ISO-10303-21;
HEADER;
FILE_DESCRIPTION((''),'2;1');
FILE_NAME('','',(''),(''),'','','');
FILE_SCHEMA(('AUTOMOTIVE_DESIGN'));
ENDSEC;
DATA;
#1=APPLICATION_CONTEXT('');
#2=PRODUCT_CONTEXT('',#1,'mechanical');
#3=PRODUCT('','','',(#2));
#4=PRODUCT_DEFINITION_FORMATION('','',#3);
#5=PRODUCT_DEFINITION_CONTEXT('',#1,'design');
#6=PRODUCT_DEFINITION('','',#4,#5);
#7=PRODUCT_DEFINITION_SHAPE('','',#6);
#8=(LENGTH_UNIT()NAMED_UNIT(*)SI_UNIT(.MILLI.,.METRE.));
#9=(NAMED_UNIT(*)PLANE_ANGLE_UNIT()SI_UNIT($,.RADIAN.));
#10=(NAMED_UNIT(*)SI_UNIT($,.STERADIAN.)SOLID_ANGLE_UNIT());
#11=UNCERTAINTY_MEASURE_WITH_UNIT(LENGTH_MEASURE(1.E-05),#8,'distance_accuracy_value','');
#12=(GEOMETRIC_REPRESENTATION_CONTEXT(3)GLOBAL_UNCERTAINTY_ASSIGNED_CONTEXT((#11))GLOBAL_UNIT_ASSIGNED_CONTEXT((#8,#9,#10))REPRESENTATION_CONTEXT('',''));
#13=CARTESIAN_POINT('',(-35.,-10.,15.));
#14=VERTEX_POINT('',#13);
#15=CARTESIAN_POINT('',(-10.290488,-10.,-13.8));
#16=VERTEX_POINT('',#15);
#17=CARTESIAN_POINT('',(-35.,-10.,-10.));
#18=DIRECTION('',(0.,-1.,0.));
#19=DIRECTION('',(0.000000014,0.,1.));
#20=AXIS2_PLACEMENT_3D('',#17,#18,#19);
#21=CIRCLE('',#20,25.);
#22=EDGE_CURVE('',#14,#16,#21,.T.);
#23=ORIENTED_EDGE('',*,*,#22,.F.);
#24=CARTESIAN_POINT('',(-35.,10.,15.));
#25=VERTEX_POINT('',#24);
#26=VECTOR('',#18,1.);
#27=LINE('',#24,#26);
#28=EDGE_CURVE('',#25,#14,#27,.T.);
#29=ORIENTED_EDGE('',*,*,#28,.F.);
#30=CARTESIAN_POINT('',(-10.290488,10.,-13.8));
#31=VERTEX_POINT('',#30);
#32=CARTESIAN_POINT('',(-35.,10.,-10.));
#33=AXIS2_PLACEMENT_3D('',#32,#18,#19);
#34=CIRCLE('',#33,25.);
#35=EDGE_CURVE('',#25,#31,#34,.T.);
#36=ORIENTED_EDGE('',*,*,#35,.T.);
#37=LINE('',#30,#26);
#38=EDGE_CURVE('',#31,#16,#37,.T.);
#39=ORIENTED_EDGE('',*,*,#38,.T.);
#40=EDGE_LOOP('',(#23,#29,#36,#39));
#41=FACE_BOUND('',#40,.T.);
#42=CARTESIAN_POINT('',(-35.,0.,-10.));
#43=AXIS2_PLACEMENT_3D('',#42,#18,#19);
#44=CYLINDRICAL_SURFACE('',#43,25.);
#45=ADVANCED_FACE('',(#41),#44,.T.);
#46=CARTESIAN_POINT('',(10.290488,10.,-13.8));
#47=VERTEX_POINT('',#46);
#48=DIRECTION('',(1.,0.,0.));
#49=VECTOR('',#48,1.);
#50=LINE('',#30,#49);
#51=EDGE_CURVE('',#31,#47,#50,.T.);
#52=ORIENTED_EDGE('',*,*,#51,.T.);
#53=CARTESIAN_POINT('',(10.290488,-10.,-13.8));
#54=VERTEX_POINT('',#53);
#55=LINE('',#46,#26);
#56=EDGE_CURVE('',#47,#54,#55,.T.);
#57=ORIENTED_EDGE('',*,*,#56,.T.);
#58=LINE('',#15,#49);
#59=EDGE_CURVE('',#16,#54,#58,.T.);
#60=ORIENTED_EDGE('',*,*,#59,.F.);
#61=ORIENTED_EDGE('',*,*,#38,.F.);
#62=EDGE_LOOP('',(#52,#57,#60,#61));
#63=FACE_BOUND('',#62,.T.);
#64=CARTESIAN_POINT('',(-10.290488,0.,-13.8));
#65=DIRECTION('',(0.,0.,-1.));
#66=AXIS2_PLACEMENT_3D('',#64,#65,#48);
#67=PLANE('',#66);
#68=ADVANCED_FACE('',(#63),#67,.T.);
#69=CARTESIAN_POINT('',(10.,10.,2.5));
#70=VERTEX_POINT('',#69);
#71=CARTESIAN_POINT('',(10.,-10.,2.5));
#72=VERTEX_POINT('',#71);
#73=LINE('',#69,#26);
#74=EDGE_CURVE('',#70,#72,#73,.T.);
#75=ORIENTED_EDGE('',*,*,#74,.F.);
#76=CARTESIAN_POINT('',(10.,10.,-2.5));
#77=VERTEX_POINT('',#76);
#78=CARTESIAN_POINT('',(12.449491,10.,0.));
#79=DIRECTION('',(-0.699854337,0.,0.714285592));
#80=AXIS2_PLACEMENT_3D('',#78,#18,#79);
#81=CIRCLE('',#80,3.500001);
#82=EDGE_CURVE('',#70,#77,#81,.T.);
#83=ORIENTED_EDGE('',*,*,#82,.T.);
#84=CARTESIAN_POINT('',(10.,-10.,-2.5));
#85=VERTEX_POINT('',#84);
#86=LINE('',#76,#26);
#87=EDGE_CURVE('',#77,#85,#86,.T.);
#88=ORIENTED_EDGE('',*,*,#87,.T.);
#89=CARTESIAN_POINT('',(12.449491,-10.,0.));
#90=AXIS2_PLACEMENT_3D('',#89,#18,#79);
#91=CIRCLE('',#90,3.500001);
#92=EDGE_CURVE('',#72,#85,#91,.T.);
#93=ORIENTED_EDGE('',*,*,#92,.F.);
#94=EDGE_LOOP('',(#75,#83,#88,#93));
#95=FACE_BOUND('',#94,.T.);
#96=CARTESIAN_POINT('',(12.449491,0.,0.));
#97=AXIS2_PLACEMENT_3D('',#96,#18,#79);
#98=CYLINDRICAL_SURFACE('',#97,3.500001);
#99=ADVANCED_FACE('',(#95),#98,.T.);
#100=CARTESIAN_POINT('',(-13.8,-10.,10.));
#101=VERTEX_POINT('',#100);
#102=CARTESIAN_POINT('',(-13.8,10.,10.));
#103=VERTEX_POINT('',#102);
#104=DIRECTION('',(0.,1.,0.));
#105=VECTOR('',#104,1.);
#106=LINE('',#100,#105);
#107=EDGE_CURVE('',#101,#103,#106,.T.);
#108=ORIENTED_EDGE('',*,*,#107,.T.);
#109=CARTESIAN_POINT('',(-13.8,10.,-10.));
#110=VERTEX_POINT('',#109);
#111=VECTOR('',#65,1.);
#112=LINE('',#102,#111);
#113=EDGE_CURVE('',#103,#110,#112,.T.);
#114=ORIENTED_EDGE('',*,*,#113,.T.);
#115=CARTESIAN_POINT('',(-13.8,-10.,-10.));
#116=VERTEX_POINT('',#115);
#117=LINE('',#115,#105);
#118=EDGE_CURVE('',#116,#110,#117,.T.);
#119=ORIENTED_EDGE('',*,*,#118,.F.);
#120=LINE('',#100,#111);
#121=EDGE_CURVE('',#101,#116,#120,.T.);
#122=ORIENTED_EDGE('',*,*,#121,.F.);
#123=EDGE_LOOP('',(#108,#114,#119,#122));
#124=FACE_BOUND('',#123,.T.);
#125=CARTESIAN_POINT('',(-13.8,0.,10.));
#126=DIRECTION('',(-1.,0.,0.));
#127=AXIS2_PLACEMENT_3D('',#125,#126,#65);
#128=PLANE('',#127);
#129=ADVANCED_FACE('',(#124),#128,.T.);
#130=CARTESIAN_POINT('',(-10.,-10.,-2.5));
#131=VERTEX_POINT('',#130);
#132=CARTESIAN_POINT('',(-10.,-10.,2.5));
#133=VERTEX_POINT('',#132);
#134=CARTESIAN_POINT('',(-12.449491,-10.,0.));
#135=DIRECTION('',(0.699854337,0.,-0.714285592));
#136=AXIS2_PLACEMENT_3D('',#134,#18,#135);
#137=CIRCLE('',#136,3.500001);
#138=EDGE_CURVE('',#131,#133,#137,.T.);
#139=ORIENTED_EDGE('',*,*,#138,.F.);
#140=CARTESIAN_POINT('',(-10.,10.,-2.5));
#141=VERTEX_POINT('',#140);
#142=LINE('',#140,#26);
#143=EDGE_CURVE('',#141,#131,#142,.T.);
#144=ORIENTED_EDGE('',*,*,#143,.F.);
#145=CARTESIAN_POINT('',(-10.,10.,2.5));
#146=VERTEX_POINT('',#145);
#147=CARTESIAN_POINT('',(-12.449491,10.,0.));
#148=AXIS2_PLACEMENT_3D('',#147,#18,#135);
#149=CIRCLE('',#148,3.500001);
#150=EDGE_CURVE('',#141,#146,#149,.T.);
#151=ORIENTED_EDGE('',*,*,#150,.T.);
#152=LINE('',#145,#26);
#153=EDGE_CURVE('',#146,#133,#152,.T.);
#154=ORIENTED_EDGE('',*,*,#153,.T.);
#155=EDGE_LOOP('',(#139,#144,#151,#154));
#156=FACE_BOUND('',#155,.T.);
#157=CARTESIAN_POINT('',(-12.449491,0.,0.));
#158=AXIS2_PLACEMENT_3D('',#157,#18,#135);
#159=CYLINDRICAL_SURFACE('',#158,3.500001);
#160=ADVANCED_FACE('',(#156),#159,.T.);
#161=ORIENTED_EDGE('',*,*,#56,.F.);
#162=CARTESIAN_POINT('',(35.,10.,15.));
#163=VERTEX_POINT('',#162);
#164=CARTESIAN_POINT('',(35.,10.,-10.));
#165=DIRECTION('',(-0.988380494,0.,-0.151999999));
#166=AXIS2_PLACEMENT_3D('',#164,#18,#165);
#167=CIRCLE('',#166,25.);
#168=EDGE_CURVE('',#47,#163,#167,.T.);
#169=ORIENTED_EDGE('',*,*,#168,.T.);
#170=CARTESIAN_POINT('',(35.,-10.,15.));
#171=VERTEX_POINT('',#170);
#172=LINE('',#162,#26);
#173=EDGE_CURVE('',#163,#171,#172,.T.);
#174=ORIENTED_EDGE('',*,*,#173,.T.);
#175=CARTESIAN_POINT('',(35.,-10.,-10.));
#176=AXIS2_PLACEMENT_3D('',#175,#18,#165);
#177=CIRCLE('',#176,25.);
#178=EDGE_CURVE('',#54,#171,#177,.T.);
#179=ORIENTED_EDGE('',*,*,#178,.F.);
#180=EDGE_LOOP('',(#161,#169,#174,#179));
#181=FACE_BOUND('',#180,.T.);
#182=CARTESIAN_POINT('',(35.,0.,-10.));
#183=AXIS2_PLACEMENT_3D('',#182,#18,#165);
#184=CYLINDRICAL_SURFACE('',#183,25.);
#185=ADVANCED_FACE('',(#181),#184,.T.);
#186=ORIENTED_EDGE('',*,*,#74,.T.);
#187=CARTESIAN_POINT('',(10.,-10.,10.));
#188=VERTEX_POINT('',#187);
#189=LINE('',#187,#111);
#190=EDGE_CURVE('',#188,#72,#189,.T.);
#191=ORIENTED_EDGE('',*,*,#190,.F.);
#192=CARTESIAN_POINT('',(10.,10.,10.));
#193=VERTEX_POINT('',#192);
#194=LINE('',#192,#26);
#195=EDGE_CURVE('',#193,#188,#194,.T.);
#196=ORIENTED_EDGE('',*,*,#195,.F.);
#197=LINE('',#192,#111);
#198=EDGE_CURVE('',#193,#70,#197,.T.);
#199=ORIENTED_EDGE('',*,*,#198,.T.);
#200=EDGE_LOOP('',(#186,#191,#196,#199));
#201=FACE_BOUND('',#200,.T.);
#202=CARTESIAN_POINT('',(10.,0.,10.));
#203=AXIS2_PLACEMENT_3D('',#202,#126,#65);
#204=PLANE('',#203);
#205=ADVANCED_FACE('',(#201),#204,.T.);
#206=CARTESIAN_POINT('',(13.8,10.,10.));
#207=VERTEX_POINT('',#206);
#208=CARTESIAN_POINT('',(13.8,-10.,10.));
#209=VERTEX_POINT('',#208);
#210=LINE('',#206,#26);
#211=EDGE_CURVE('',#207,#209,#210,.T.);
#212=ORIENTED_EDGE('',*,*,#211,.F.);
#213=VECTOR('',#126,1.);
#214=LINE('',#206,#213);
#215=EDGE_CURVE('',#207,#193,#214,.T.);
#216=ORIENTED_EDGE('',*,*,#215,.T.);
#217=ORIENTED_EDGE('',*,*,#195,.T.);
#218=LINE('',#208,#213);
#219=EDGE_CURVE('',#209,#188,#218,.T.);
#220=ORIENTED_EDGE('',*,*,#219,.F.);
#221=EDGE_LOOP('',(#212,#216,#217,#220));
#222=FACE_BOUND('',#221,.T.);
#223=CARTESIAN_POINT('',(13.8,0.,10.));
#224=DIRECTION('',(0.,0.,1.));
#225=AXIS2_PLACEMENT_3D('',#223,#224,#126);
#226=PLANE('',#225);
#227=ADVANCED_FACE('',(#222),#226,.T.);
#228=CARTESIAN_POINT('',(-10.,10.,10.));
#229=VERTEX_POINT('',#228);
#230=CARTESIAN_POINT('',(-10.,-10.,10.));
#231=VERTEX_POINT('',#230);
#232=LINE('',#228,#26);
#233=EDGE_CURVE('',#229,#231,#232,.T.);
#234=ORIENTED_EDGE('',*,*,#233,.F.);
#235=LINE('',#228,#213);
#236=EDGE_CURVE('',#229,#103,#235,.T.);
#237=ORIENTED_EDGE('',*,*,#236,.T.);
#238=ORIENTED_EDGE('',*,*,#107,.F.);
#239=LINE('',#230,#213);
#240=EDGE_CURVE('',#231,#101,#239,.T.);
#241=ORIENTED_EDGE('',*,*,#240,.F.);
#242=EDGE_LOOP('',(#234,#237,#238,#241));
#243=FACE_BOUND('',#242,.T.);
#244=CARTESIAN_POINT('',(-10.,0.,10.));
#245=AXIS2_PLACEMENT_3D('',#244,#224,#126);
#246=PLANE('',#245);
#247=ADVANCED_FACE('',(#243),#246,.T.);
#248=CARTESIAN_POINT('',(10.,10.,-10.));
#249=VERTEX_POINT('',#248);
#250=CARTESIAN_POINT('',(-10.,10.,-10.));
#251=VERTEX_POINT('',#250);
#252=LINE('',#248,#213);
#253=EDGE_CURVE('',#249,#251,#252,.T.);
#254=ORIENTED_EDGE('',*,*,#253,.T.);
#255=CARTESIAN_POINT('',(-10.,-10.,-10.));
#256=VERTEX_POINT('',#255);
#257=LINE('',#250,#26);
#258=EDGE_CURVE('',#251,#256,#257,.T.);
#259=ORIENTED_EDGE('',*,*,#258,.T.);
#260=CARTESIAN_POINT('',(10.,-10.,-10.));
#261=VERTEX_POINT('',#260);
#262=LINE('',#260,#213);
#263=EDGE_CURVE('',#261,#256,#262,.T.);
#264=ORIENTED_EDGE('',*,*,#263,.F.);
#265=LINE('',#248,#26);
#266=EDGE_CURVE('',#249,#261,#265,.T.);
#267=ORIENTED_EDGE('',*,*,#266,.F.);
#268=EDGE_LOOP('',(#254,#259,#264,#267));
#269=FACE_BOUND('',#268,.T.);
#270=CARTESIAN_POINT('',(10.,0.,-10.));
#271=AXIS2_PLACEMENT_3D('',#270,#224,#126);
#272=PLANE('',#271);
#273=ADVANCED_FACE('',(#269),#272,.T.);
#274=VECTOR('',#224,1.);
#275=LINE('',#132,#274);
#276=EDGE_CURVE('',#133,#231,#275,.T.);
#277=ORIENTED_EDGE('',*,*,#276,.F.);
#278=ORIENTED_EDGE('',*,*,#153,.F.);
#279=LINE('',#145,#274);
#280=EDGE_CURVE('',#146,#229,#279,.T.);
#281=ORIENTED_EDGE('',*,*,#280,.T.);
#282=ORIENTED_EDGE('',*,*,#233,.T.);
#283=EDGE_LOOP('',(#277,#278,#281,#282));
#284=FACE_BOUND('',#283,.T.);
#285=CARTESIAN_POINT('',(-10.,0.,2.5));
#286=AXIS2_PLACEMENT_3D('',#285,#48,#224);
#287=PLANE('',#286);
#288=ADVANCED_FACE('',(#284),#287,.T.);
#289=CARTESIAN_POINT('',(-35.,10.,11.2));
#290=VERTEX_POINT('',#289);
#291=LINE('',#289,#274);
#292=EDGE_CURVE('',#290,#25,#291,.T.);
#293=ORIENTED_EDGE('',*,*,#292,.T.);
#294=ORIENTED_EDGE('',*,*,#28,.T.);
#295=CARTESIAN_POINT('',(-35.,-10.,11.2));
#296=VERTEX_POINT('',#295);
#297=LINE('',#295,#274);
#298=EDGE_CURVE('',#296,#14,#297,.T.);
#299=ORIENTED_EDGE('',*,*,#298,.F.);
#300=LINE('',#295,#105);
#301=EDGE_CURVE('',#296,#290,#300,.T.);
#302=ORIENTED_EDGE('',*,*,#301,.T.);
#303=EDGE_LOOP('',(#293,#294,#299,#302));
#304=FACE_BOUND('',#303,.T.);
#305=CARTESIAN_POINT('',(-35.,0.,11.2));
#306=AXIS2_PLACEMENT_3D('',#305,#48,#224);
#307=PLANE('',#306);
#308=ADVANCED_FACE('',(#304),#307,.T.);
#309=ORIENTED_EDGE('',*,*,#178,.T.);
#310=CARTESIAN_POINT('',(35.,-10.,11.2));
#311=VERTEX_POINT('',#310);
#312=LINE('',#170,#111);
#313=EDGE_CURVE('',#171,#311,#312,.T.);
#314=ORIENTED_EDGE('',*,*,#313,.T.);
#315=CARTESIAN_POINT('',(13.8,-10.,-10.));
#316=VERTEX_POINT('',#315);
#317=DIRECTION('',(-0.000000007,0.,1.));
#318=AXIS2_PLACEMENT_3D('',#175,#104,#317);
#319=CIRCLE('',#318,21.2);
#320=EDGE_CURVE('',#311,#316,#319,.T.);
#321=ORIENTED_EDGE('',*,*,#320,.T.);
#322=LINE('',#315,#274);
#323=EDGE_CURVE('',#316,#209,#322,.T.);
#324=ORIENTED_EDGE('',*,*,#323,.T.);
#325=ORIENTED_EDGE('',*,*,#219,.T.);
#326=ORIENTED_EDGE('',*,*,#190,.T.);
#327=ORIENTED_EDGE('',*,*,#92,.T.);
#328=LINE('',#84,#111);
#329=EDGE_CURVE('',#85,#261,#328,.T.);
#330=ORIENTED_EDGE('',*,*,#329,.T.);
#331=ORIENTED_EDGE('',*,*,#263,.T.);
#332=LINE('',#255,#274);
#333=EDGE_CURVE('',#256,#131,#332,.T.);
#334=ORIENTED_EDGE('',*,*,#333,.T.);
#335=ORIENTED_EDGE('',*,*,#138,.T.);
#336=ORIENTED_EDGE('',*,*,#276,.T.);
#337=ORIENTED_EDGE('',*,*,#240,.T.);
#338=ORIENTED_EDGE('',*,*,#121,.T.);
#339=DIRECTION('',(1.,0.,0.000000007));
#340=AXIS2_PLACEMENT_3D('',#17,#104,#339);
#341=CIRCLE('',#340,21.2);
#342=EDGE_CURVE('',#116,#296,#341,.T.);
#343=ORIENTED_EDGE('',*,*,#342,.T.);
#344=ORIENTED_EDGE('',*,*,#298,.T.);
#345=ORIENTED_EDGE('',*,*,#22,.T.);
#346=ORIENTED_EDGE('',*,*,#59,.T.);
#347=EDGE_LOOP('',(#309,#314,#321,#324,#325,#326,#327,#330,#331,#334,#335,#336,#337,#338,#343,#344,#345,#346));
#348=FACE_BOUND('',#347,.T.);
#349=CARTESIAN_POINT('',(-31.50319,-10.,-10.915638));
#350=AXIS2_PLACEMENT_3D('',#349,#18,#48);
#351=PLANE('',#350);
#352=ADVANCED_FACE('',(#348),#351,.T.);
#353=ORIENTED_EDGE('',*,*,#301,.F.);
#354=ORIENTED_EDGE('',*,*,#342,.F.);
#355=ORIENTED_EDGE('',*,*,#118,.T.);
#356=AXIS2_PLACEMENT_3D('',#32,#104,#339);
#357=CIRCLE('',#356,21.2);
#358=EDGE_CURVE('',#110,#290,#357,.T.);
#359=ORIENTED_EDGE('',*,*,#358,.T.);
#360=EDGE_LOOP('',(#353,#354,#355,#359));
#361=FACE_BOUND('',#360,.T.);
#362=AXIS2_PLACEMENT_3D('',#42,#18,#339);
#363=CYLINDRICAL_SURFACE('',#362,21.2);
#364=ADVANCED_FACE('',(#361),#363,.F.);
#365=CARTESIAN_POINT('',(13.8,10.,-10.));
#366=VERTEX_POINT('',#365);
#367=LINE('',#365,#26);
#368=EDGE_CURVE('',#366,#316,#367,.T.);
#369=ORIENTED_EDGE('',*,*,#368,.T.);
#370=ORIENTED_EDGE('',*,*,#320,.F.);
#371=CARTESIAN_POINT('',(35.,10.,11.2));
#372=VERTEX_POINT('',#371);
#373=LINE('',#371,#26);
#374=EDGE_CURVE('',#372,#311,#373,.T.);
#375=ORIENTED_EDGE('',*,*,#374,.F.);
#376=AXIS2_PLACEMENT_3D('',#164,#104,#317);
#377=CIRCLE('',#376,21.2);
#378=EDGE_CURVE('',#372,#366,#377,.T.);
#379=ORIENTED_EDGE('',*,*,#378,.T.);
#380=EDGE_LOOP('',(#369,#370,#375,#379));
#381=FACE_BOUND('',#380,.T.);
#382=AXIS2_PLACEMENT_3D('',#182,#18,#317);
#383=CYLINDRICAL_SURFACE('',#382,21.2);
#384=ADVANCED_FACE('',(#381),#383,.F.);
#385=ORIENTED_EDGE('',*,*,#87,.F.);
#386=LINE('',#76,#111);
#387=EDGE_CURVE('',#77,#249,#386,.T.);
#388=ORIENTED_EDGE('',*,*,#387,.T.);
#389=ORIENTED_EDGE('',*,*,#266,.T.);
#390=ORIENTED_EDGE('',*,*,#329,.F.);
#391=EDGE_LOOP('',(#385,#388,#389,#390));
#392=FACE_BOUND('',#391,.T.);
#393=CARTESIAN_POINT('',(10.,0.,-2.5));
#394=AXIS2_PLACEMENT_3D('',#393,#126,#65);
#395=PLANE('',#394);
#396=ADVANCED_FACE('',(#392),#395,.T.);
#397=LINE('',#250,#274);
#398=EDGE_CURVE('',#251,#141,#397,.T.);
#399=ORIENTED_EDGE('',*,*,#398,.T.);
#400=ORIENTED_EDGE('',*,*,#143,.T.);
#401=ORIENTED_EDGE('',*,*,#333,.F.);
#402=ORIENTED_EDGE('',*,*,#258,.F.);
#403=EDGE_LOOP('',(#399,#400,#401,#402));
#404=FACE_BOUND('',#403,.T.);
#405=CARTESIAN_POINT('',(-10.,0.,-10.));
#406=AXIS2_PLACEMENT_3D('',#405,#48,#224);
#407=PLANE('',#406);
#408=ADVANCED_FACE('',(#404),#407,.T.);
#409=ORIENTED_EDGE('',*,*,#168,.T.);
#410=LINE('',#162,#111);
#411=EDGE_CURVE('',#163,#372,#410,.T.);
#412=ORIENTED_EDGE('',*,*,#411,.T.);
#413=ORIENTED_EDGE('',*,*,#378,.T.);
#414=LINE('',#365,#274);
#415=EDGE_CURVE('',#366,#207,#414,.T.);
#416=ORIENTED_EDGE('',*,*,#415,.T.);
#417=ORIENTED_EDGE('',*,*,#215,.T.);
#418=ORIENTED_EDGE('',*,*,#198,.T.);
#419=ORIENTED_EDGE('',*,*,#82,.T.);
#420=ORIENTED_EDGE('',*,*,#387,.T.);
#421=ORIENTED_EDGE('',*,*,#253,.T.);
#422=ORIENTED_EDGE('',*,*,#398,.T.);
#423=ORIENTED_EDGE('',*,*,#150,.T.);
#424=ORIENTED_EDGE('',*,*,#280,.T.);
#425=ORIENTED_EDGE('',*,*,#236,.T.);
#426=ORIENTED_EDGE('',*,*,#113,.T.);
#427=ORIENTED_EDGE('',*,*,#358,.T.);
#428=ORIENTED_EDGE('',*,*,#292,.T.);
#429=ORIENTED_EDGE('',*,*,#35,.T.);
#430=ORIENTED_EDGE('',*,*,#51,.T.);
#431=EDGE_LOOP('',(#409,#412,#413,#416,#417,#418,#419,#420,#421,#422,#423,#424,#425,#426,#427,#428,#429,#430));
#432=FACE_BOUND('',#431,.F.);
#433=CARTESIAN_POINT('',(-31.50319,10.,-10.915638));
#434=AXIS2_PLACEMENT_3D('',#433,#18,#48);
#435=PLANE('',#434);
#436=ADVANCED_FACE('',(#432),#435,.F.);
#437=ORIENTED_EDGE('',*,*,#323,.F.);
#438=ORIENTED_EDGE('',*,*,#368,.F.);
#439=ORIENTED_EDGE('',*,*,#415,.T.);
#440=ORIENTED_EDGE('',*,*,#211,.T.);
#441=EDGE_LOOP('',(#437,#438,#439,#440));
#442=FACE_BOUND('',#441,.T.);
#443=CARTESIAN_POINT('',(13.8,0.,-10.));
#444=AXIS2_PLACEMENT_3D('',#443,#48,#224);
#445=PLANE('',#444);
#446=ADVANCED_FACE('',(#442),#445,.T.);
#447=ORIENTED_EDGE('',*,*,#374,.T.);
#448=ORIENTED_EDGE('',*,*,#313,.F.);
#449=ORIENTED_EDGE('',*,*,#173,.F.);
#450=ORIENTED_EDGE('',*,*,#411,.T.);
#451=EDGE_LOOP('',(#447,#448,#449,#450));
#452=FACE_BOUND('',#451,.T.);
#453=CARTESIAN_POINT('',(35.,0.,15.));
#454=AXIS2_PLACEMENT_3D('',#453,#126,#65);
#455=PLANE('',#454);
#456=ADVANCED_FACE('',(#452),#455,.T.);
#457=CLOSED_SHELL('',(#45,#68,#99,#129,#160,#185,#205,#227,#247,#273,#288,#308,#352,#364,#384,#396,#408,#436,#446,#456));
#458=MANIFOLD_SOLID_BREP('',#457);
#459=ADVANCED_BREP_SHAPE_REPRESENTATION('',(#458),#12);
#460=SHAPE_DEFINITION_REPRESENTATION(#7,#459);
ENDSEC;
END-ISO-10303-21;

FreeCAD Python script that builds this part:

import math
import FreeCAD as App
import Part
import Sketcher
Q = App.Units.Quantity

doc = App.newDocument("Part")
body = doc.addObject("PartDesign::Body", "Body")

# Sketch on XZ plane
sketch1 = body.newObject("Sketcher::SketchObject", "Sketch")
sketch1.AttachmentSupport = (doc.getObject("XZ_Plane"), [""])
sketch1.MapMode = "FlatFace"
sketch1.addGeometry([
    Part.LineSegment(App.Vector(-35, 11.2, 0), App.Vector(-35, 15, 0)),  # 0
    Part.ArcOfCircle(Part.Circle(App.Vector(-35, -10, 0), App.Vector(0, 0, 1), 25), math.radians(90), math.radians(351)),  # 1
    Part.LineSegment(App.Vector(-10.3, -13.8, 0), App.Vector(10.3, -13.8, 0)),  # 2
    Part.ArcOfCircle(Part.Circle(App.Vector(35, -10, 0), App.Vector(0, 0, 1), 25), math.radians(-171), math.radians(90)),  # 3
    Part.LineSegment(App.Vector(35, 15, 0), App.Vector(35, 11.2, 0)),  # 4
    Part.ArcOfCircle(Part.Circle(App.Vector(35, -10, 0), App.Vector(0, 0, 1), 21.2), math.radians(180), math.radians(450)),  # 5
    Part.LineSegment(App.Vector(13.8, -10, 0), App.Vector(13.8, 10, 0)),  # 6
    Part.LineSegment(App.Vector(13.8, 10, 0), App.Vector(10, 10, 0)),  # 7
    Part.LineSegment(App.Vector(10, 10, 0), App.Vector(10, 2.5, 0)),  # 8
    Part.ArcOfCircle(Part.Circle(App.Vector(12.4, 0, 0), App.Vector(0, 0, 1), 3.5), math.radians(134), math.radians(226)),  # 9
    Part.LineSegment(App.Vector(10, -2.5, 0), App.Vector(10, -10, 0)),  # 10
    Part.LineSegment(App.Vector(10, -10, 0), App.Vector(-10, -10, 0)),  # 11
    Part.LineSegment(App.Vector(-10, -10, 0), App.Vector(-10, -2.5, 0)),  # 12
    Part.ArcOfCircle(Part.Circle(App.Vector(-12.4, 0, 0), App.Vector(0, 0, 1), 3.5), math.radians(-46), math.radians(46)),  # 13
    Part.LineSegment(App.Vector(-10, 2.5, 0), App.Vector(-10, 10, 0)),  # 14
    Part.LineSegment(App.Vector(-10, 10, 0), App.Vector(-13.8, 10, 0)),  # 15
    Part.LineSegment(App.Vector(-13.8, 10, 0), App.Vector(-13.8, -10, 0)),  # 16
    Part.ArcOfCircle(Part.Circle(App.Vector(-35, -10, 0), App.Vector(0, 0, 1), 21.2), math.radians(90), math.radians(360)),  # 17
], False)
sketch1.addConstraint([
    Sketcher.Constraint("Coincident", 0, 2, 1, 1),
    Sketcher.Constraint("Coincident", 1, 2, 2, 1),
    Sketcher.Constraint("Coincident", 2, 2, 3, 1),
    Sketcher.Constraint("Coincident", 3, 2, 4, 1),
    Sketcher.Constraint("Coincident", 4, 2, 5, 2),
    Sketcher.Constraint("Tangent", 5, 1, 6, 1),
    Sketcher.Constraint("Coincident", 6, 2, 7, 1),
    Sketcher.Constraint("Coincident", 7, 2, 8, 1),
    Sketcher.Constraint("Coincident", 8, 2, 9, 1),
    Sketcher.Constraint("Coincident", 9, 2, 10, 1),
    Sketcher.Constraint("Coincident", 10, 2, 11, 1),
    Sketcher.Constraint("Coincident", 11, 2, 12, 1),
    Sketcher.Constraint("Coincident", 12, 2, 13, 1),
    Sketcher.Constraint("Coincident", 13, 2, 14, 1),
    Sketcher.Constraint("Coincident", 14, 2, 15, 1),
    Sketcher.Constraint("Coincident", 15, 2, 16, 1),
    Sketcher.Constraint("Tangent", 16, 2, 17, 2),
    Sketcher.Constraint("Coincident", 17, 1, 0, 1),
    Sketcher.Constraint("Vertical", 0),
    Sketcher.Constraint("Horizontal", 2),
    Sketcher.Constraint("Vertical", 4),
    Sketcher.Constraint("Vertical", 6),
    Sketcher.Constraint("Horizontal", 7),
    Sketcher.Constraint("Vertical", 8),
    Sketcher.Constraint("Vertical", 10),
    Sketcher.Constraint("Horizontal", 11),
    Sketcher.Constraint("Vertical", 12),
    Sketcher.Constraint("Vertical", 14),
    Sketcher.Constraint("Horizontal", 15),
    Sketcher.Constraint("Vertical", 16),
    Sketcher.Constraint("Coincident", 5, 3, 3, 3),
    Sketcher.Constraint("Coincident", 17, 3, 1, 3),
    Sketcher.Constraint("Equal", 1, 3),
    Sketcher.Constraint("Equal", 9, 13),
    Sketcher.Constraint("Equal", 5, 17),
    Sketcher.Constraint("Symmetric", 9, 3, 13, 3, -1, 1),
    Sketcher.Constraint("Symmetric", 7, 2, 11, 2, -1, 1),
    Sketcher.Constraint("Symmetric", 10, 2, 14, 2, -1, 1),
    Sketcher.Constraint("Symmetric", 5, 1, 15, 2, -1, 1),
    Sketcher.Constraint("Symmetric", 0, 2, 3, 2, -2),
    Sketcher.Constraint("Symmetric", 9, 2, 12, 2, -2),
    Sketcher.Constraint("Vertical", 17, 3, 0, 2),
    Sketcher.Constraint("Equal", 15, 0),
    Sketcher.Constraint("Equal", 11, 6),
    Sketcher.Constraint("Radius", 1, Q("25 mm")),
    Sketcher.Constraint("Radius", 5, Q("21.2 mm")),
    Sketcher.Constraint("Radius", 9, Q("3.500001 mm")),
    Sketcher.Constraint("DistanceX", 11, 2, 11, 1, Q("20 mm")),
    Sketcher.Constraint("DistanceY", 8, 2, 8, 1, Q("7.5 mm")),
    Sketcher.Constraint("DistanceY", 2, 2, 4, 2, Q("25 mm")),
])
pad1 = body.newObject("PartDesign::Pad", "Pad")
pad1.Profile = sketch1
pad1.Length = 20
pad1.Midplane = True

doc.recompute()
